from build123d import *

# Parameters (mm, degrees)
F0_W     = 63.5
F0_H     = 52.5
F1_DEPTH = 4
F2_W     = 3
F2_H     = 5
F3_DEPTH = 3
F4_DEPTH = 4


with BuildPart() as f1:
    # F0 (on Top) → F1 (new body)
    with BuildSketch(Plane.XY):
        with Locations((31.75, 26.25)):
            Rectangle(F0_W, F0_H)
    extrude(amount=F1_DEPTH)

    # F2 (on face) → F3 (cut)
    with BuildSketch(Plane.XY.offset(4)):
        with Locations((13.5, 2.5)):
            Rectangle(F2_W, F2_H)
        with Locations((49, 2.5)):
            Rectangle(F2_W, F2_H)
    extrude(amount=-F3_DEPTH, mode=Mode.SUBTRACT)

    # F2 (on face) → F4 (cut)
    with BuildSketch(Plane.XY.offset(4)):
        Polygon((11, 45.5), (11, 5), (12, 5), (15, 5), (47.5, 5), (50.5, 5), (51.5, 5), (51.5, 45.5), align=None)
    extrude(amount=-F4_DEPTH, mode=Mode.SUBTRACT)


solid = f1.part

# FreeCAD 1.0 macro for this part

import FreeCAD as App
import Part
import Sketcher


def add_polygon(sketch, points):
    """Adds a closed chain of lines whose ends are joined by coincident constraints."""
    first, n = sketch.GeometryCount, len(points)
    for a, b in zip(points, points[1:] + points[:1]):
        sketch.addGeometry(Part.LineSegment(App.Vector(*a, 0), App.Vector(*b, 0)), False)
    for i in range(n):
        sketch.addConstraint(Sketcher.Constraint("Coincident", first + i, 2, first + (i + 1) % n, 1))

doc = App.newDocument("Part")
params = doc.addObject("Spreadsheet::Sheet", "Params")
for row, (alias, value) in enumerate([
    ("sketch1_width", "63.5 mm"),
    ("sketch1_height", "52.5 mm"),
    ("pad1_length", "4 mm"),
    ("sketch2_width", "3 mm"),
    ("sketch2_height", "5 mm"),
    ("pocket1_length", "3 mm"),
    ("sketch3_width", "40.5 mm"),
    ("pocket2_length", "4 mm"),
], start=1):
    params.set(f"A{row}", alias)
    params.set(f"B{row}", "=" + value)
    params.setAlias(f"B{row}", alias)

body = doc.addObject("PartDesign::Body", "Body")

# Sketch on XY plane
sketch1 = body.newObject("Sketcher::SketchObject", "Sketch")
sketch1.AttachmentSupport = (doc.getObject("XY_Plane"), [""])
sketch1.MapMode = "FlatFace"
add_polygon(sketch1, [(0, 52), (0, 0), (64, 0), (64, 52)])  # lines 0-3
sketch1.addConstraint(Sketcher.Constraint("Vertical", 0))
sketch1.addConstraint(Sketcher.Constraint("Horizontal", 1))
sketch1.addConstraint(Sketcher.Constraint("Vertical", 2))
sketch1.addConstraint(Sketcher.Constraint("Horizontal", 3))
sketch1.addConstraint(Sketcher.Constraint("Coincident", 0, 2, -1, 1))
sketch1.addConstraint(Sketcher.Constraint("DistanceX", 1, 1, 1, 2, 63.5))
sketch1.addConstraint(Sketcher.Constraint("DistanceY", 0, 2, 0, 1, 52.5))
sketch1.setExpression("Constraints[9]", "Params.sketch1_width")
sketch1.setExpression("Constraints[10]", "Params.sketch1_height")
pad1 = body.newObject("PartDesign::Pad", "Pad")
pad1.Profile = sketch1
pad1.setExpression("Length", "Params.pad1_length")

# Sketch on XY plane
sketch2 = body.newObject("Sketcher::SketchObject", "Sketch001")
sketch2.AttachmentSupport = (doc.getObject("XY_Plane"), [""])
sketch2.MapMode = "FlatFace"
sketch2.AttachmentOffset = App.Placement(App.Vector(0, 0, 4), App.Rotation())
add_polygon(sketch2, [(12, 5), (12, 0), (15, 0), (15, 5)])  # lines 0-3
add_polygon(sketch2, [(47.5, 5), (47.5, 0), (50.5, 0), (50.5, 5)])  # lines 4-7
sketch2.addConstraint(Sketcher.Constraint("Vertical", 0))
sketch2.addConstraint(Sketcher.Constraint("Horizontal", 1))
sketch2.addConstraint(Sketcher.Constraint("Vertical", 2))
sketch2.addConstraint(Sketcher.Constraint("Horizontal", 3))
sketch2.addConstraint(Sketcher.Constraint("Vertical", 4))
sketch2.addConstraint(Sketcher.Constraint("Horizontal", 5))
sketch2.addConstraint(Sketcher.Constraint("Vertical", 6))
sketch2.addConstraint(Sketcher.Constraint("Horizontal", 7))
sketch2.addConstraint(Sketcher.Constraint("PointOnObject", 0, 2, -1))
sketch2.addConstraint(Sketcher.Constraint("PointOnObject", 4, 2, -1))
sketch2.addConstraint(Sketcher.Constraint("Horizontal", 3, 2, 6, 2))
sketch2.addConstraint(Sketcher.Constraint("Equal", 3, 5))
sketch2.addConstraint(Sketcher.Constraint("DistanceX", 1, 1, 1, 2, 3.0))
sketch2.addConstraint(Sketcher.Constraint("DistanceY", 0, 2, 0, 1, 5.0))
sketch2.addConstraint(Sketcher.Constraint("DistanceX", -1, 1, 0, 2, 12.0))
sketch2.addConstraint(Sketcher.Constraint("DistanceX", -1, 1, 4, 2, 47.5))
sketch2.setExpression("Constraints[20]", "Params.sketch2_width")
sketch2.setExpression("Constraints[21]", "Params.sketch2_height")
pocket1 = body.newObject("PartDesign::Pocket", "Pocket")
pocket1.Profile = sketch2
pocket1.setExpression("Length", "Params.pocket1_length")

# Sketch on XY plane
sketch3 = body.newObject("Sketcher::SketchObject", "Sketch002")
sketch3.AttachmentSupport = (doc.getObject("XY_Plane"), [""])
sketch3.MapMode = "FlatFace"
sketch3.AttachmentOffset = App.Placement(App.Vector(0, 0, 4), App.Rotation())
add_polygon(sketch3, [(11, 46), (11, 5), (52, 5), (52, 46)])  # lines 0-3
sketch3.addConstraint(Sketcher.Constraint("Vertical", 0))
sketch3.addConstraint(Sketcher.Constraint("Horizontal", 1))
sketch3.addConstraint(Sketcher.Constraint("Vertical", 2))
sketch3.addConstraint(Sketcher.Constraint("Horizontal", 3))
sketch3.addConstraint(Sketcher.Constraint("Equal", 3, 0))
sketch3.addConstraint(Sketcher.Constraint("DistanceX", 1, 1, 1, 2, 40.5))
sketch3.addConstraint(Sketcher.Constraint("DistanceX", -1, 1, 0, 2, 11.0))
sketch3.addConstraint(Sketcher.Constraint("DistanceY", -1, 1, 0, 2, 5.0))
sketch3.setExpression("Constraints[9]", "Params.sketch3_width")
pocket2 = body.newObject("PartDesign::Pocket", "Pocket001")
pocket2.Profile = sketch3
pocket2.setExpression("Length", "Params.pocket2_length")

doc.recompute()
